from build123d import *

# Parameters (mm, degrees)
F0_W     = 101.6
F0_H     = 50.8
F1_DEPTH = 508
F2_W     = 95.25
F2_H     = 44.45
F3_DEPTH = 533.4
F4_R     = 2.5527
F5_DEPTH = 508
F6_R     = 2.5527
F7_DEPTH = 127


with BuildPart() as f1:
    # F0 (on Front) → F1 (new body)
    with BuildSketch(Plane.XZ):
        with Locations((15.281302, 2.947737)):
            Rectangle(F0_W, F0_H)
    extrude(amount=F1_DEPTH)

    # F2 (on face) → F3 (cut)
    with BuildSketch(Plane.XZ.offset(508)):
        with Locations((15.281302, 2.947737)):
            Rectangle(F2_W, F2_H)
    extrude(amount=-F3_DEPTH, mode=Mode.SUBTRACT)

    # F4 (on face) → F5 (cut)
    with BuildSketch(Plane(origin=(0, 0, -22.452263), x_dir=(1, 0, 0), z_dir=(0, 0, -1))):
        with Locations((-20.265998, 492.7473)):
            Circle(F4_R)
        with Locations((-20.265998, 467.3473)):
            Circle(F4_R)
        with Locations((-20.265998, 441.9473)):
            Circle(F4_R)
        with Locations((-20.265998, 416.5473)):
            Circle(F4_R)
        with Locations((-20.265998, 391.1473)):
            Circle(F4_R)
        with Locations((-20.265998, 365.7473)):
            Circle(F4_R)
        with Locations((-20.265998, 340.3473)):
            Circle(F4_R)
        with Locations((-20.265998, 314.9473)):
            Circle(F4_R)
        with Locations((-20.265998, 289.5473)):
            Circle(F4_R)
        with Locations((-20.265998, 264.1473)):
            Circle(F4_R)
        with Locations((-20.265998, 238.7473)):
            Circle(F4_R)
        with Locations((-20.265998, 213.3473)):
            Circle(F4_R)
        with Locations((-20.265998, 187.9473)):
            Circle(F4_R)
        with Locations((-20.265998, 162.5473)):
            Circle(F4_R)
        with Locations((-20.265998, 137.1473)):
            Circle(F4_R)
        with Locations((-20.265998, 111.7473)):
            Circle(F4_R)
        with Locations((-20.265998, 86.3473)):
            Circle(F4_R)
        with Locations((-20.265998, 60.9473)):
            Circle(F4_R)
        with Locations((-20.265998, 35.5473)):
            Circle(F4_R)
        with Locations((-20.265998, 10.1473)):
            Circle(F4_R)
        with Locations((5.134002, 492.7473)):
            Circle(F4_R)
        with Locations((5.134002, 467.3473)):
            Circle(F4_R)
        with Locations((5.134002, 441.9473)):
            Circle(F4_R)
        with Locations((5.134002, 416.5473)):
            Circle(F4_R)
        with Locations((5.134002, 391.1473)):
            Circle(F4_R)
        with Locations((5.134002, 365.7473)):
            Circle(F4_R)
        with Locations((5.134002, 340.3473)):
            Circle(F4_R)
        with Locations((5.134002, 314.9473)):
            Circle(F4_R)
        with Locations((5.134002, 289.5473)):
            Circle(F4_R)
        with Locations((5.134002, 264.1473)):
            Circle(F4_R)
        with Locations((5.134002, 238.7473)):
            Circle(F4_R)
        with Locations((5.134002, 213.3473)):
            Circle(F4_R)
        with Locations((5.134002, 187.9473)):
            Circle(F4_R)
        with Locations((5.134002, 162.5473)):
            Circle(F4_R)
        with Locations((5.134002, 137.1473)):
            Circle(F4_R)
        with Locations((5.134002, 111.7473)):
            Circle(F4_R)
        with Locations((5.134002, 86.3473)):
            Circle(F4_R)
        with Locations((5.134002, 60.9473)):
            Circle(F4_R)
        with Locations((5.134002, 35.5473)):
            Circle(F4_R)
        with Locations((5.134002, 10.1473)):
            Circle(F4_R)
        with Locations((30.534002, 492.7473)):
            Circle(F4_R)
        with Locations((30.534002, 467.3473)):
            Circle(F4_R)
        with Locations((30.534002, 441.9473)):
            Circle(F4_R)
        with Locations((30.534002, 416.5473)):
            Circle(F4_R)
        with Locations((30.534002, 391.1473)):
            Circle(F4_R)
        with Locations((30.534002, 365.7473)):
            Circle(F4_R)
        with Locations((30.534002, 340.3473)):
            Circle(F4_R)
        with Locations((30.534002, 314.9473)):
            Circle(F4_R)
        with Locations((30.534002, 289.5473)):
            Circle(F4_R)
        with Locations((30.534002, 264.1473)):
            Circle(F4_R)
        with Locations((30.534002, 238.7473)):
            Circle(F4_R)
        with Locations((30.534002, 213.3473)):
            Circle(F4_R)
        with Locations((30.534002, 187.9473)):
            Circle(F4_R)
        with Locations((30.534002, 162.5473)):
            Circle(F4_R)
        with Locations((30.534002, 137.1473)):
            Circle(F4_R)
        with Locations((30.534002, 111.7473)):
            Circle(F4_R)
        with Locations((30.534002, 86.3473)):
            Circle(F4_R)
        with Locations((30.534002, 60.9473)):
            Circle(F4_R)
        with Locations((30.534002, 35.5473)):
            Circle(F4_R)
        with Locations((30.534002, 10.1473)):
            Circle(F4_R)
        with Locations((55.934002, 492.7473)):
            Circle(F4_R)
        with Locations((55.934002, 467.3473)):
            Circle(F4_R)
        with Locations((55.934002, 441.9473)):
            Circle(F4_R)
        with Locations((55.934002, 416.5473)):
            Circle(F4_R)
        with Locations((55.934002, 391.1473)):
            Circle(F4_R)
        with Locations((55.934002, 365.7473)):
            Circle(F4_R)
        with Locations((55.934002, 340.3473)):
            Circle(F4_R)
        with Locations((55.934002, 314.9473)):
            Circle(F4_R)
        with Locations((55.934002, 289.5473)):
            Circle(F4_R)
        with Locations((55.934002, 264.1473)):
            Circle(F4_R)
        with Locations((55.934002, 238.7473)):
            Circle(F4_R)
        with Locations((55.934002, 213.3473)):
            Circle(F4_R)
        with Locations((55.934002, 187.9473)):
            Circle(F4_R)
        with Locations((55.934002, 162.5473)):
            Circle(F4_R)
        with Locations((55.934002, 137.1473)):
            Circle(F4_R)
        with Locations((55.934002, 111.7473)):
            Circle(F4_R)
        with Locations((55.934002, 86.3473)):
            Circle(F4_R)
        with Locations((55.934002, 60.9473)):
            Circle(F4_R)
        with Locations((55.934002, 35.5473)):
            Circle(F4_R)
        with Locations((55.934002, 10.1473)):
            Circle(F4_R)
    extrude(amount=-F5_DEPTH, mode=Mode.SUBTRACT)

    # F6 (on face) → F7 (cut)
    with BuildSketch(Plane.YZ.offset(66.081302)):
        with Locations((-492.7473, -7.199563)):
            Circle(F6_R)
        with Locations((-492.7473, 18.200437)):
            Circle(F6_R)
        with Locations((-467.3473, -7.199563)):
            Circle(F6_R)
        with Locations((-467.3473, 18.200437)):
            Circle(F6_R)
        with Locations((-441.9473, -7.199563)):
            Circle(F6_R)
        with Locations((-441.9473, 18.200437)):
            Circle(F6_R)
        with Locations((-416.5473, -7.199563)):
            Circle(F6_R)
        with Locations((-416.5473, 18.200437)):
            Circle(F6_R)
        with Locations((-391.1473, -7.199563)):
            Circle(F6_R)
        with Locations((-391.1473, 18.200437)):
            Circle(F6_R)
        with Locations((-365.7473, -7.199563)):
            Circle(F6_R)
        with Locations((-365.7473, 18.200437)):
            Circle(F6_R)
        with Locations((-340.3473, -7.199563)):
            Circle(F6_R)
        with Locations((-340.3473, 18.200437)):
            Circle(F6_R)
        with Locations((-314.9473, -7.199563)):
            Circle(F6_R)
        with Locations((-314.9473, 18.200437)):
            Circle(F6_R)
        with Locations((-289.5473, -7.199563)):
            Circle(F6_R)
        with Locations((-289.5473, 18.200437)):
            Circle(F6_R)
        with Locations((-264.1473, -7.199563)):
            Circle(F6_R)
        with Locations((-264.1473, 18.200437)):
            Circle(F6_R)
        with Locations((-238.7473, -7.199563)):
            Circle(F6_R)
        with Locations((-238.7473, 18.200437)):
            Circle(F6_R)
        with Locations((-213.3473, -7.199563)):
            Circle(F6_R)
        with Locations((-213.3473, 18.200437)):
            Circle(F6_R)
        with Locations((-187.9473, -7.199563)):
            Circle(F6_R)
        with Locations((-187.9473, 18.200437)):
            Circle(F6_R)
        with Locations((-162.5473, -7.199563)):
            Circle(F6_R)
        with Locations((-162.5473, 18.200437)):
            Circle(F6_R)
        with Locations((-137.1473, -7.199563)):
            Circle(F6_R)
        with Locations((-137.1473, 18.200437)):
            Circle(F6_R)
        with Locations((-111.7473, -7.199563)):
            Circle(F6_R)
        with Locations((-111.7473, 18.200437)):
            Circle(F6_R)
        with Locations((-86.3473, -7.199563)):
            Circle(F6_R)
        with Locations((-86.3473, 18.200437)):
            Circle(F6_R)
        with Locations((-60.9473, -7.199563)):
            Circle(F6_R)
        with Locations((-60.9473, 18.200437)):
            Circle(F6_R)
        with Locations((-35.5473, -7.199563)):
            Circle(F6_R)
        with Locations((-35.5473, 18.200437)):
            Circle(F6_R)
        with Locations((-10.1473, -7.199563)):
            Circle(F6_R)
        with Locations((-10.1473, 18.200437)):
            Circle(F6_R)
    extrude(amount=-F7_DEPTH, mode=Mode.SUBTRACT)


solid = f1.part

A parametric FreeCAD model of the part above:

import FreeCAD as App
import Part
import Sketcher

V = App.Vector
Q = App.Units.Quantity

doc = App.newDocument("Part")
body = doc.addObject("PartDesign::Body", "Body")

sketch1 = body.newObject("Sketcher::SketchObject", "Sketch")
sketch1.AttachmentSupport = (doc.getObject("XZ_Plane"), [""])
sketch1.MapMode = "FlatFace"
sketch1.addGeometry(Part.LineSegment(V(-35.518698, 28.347737, 0), V(-35.518698, -22.452263, 0)), False)
sketch1.addGeometry(Part.LineSegment(V(-35.518698, -22.452263, 0), V(66.081302, -22.452263, 0)), False)
sketch1.addGeometry(Part.LineSegment(V(66.081302, -22.452263, 0), V(66.081302, 28.347737, 0)), False)
sketch1.addGeometry(Part.LineSegment(V(66.081302, 28.347737, 0), V(-35.518698, 28.347737, 0)), False)
sketch1.addConstraint(Sketcher.Constraint("Coincident", 0, 2, 1, 1))
sketch1.addConstraint(Sketcher.Constraint("Coincident", 1, 2, 2, 1))
sketch1.addConstraint(Sketcher.Constraint("Coincident", 2, 2, 3, 1))
sketch1.addConstraint(Sketcher.Constraint("Coincident", 3, 2, 0, 1))
sketch1.addConstraint(Sketcher.Constraint("Vertical", 0))
sketch1.addConstraint(Sketcher.Constraint("Horizontal", 1))
sketch1.addConstraint(Sketcher.Constraint("Vertical", 2))
sketch1.addConstraint(Sketcher.Constraint("Horizontal", 3))
sketch1.addConstraint(Sketcher.Constraint("DistanceX", 1, 1, 1, 2, Q("4 in")))
sketch1.addConstraint(Sketcher.Constraint("DistanceY", 0, 2, 0, 1, Q("2 in")))
sketch1.addConstraint(Sketcher.Constraint("DistanceX", -1, 1, 1, 2, Q("66.081302 mm")))
sketch1.addConstraint(Sketcher.Constraint("DistanceY", 0, 2, -1, 1, Q("22.452263 mm")))
pad1 = body.newObject("PartDesign::Pad", "Pad")
pad1.Profile = sketch1
pad1.Length = Q("20 in")

sketch2 = body.newObject("Sketcher::SketchObject", "Sketch001")
sketch2.AttachmentSupport = (doc.getObject("XZ_Plane"), [""])
sketch2.MapMode = "FlatFace"
sketch2.AttachmentOffset = App.Placement(V(0, 0, 20 * 25.4), App.Rotation())
sketch2.addGeometry(Part.LineSegment(V(-32.343698, 25.172737, 0), V(-32.343698, -19.277263, 0)), False)
sketch2.addGeometry(Part.LineSegment(V(-32.343698, -19.277263, 0), V(62.906302, -19.277263, 0)), False)
sketch2.addGeometry(Part.LineSegment(V(62.906302, -19.277263, 0), V(62.906302, 25.172737, 0)), False)
sketch2.addGeometry(Part.LineSegment(V(62.906302, 25.172737, 0), V(-32.343698, 25.172737, 0)), False)
sketch2.addConstraint(Sketcher.Constraint("Coincident", 0, 2, 1, 1))
sketch2.addConstraint(Sketcher.Constraint("Coincident", 1, 2, 2, 1))
sketch2.addConstraint(Sketcher.Constraint("Coincident", 2, 2, 3, 1))
sketch2.addConstraint(Sketcher.Constraint("Coincident", 3, 2, 0, 1))
sketch2.addConstraint(Sketcher.Constraint("Vertical", 0))
sketch2.addConstraint(Sketcher.Constraint("Horizontal", 1))
sketch2.addConstraint(Sketcher.Constraint("Vertical", 2))
sketch2.addConstraint(Sketcher.Constraint("Horizontal", 3))
sketch2.addConstraint(Sketcher.Constraint("DistanceX", 1, 1, 1, 2, Q("3.75 in")))
sketch2.addConstraint(Sketcher.Constraint("DistanceY", 0, 2, 0, 1, Q("1.75 in")))
sketch2.addConstraint(Sketcher.Constraint("DistanceX", 0, 2, -1, 1, Q("32.343698 mm")))
sketch2.addConstraint(Sketcher.Constraint("DistanceY", 0, 2, -1, 1, Q("19.277263 mm")))
pocket1 = body.newObject("PartDesign::Pocket", "Pocket")
pocket1.Profile = sketch2
pocket1.Length = Q("21 in")

sketch3 = body.newObject("Sketcher::SketchObject", "Sketch002")
sketch3.AttachmentSupport = (doc.getObject("XY_Plane"), [""])
sketch3.MapMode = "FlatFace"
sketch3.AttachmentOffset = App.Placement(V(0, 0, -22.452263), App.Rotation())
sketch3.addGeometry(Part.Circle(V(-20.265998, -492.7473, 0), V(0, 0, 1), 2.5527), False)
sketch3.addGeometry(Part.Circle(V(-20.265998, -467.3473, 0), V(0, 0, 1), 2.5527), False)
sketch3.addGeometry(Part.Circle(V(-20.265998, -441.9473, 0), V(0, 0, 1), 2.5527), False)
sketch3.addGeometry(Part.Circle(V(-20.265998, -416.5473, 0), V(0, 0, 1), 2.5527), False)
sketch3.addGeometry(Part.Circle(V(-20.265998, -391.1473, 0), V(0, 0, 1), 2.5527), False)
sketch3.addGeometry(Part.Circle(V(-20.265998, -365.7473, 0), V(0, 0, 1), 2.5527), False)
sketch3.addGeometry(Part.Circle(V(-20.265998, -340.3473, 0), V(0, 0, 1), 2.5527), False)
sketch3.addGeometry(Part.Circle(V(-20.265998, -314.9473, 0), V(0, 0, 1), 2.5527), False)
sketch3.addGeometry(Part.Circle(V(-20.265998, -289.5473, 0), V(0, 0, 1), 2.5527), False)
sketch3.addGeometry(Part.Circle(V(-20.265998, -264.1473, 0), V(0, 0, 1), 2.5527), False)
sketch3.addGeometry(Part.Circle(V(-20.265998, -238.7473, 0), V(0, 0, 1), 2.5527), False)
sketch3.addGeometry(Part.Circle(V(-20.265998, -213.3473, 0), V(0, 0, 1), 2.5527), False)
sketch3.addGeometry(Part.Circle(V(-20.265998, -187.9473, 0), V(0, 0, 1), 2.5527), False)
sketch3.addGeometry(Part.Circle(V(-20.265998, -162.5473, 0), V(0, 0, 1), 2.5527), False)
sketch3.addGeometry(Part.Circle(V(-20.265998, -137.1473, 0), V(0, 0, 1), 2.5527), False)
sketch3.addGeometry(Part.Circle(V(-20.265998, -111.7473, 0), V(0, 0, 1), 2.5527), False)
sketch3.addGeometry(Part.Circle(V(-20.265998, -86.3473, 0), V(0, 0, 1), 2.5527), False)
sketch3.addGeometry(Part.Circle(V(-20.265998, -60.9473, 0), V(0, 0, 1), 2.5527), False)
sketch3.addGeometry(Part.Circle(V(-20.265998, -35.5473, 0), V(0, 0, 1), 2.5527), False)
sketch3.addGeometry(Part.Circle(V(-20.265998, -10.1473, 0), V(0, 0, 1), 2.5527), False)
sketch3.addGeometry(Part.Circle(V(5.134002, -492.7473, 0), V(0, 0, 1), 2.5527), False)
sketch3.addGeometry(Part.Circle(V(5.134002, -467.3473, 0), V(0, 0, 1), 2.5527), False)
sketch3.addGeometry(Part.Circle(V(5.134002, -441.9473, 0), V(0, 0, 1), 2.5527), False)
sketch3.addGeometry(Part.Circle(V(5.134002, -416.5473, 0), V(0, 0, 1), 2.5527), False)
sketch3.addGeometry(Part.Circle(V(5.134002, -391.1473, 0), V(0, 0, 1), 2.5527), False)
sketch3.addGeometry(Part.Circle(V(5.134002, -365.7473, 0), V(0, 0, 1), 2.5527), False)
sketch3.addGeometry(Part.Circle(V(5.134002, -340.3473, 0), V(0, 0, 1), 2.5527), False)
sketch3.addGeometry(Part.Circle(V(5.134002, -314.9473, 0), V(0, 0, 1), 2.5527), False)
sketch3.addGeometry(Part.Circle(V(5.134002, -289.5473, 0), V(0, 0, 1), 2.5527), False)
sketch3.addGeometry(Part.Circle(V(5.134002, -264.1473, 0), V(0, 0, 1), 2.5527), False)
sketch3.addGeometry(Part.Circle(V(5.134002, -238.7473, 0), V(0, 0, 1), 2.5527), False)
sketch3.addGeometry(Part.Circle(V(5.134002, -213.3473, 0), V(0, 0, 1), 2.5527), False)
sketch3.addGeometry(Part.Circle(V(5.134002, -187.9473, 0), V(0, 0, 1), 2.5527), False)
sketch3.addGeometry(Part.Circle(V(5.134002, -162.5473, 0), V(0, 0, 1), 2.5527), False)
sketch3.addGeometry(Part.Circle(V(5.134002, -137.1473, 0), V(0, 0, 1), 2.5527), False)
sketch3.addGeometry(Part.Circle(V(5.134002, -111.7473, 0), V(0, 0, 1), 2.5527), False)
sketch3.addGeometry(Part.Circle(V(5.134002, -86.3473, 0), V(0, 0, 1), 2.5527), False)
sketch3.addGeometry(Part.Circle(V(5.134002, -60.9473, 0), V(0, 0, 1), 2.5527), False)
sketch3.addGeometry(Part.Circle(V(5.134002, -35.5473, 0), V(0, 0, 1), 2.5527), False)
sketch3.addGeometry(Part.Circle(V(5.134002, -10.1473, 0), V(0, 0, 1), 2.5527), False)
sketch3.addGeometry(Part.Circle(V(30.534002, -492.7473, 0), V(0, 0, 1), 2.5527), False)
sketch3.addGeometry(Part.Circle(V(30.534002, -467.3473, 0), V(0, 0, 1), 2.5527), False)
sketch3.addGeometry(Part.Circle(V(30.534002, -441.9473, 0), V(0, 0, 1), 2.5527), False)
sketch3.addGeometry(Part.Circle(V(30.534002, -416.5473, 0), V(0, 0, 1), 2.5527), False)
sketch3.addGeometry(Part.Circle(V(30.534002, -391.1473, 0), V(0, 0, 1), 2.5527), False)
sketch3.addGeometry(Part.Circle(V(30.534002, -365.7473, 0), V(0, 0, 1), 2.5527), False)
sketch3.addGeometry(Part.Circle(V(30.534002, -340.3473, 0), V(0, 0, 1), 2.5527), False)
sketch3.addGeometry(Part.Circle(V(30.534002, -314.9473, 0), V(0, 0, 1), 2.5527), False)
sketch3.addGeometry(Part.Circle(V(30.534002, -289.5473, 0), V(0, 0, 1), 2.5527), False)
sketch3.addGeometry(Part.Circle(V(30.534002, -264.1473, 0), V(0, 0, 1), 2.5527), False)
sketch3.addGeometry(Part.Circle(V(30.534002, -238.7473, 0), V(0, 0, 1), 2.5527), False)
sketch3.addGeometry(Part.Circle(V(30.534002, -213.3473, 0), V(0, 0, 1), 2.5527), False)
sketch3.addGeometry(Part.Circle(V(30.534002, -187.9473, 0), V(0, 0, 1), 2.5527), False)
sketch3.addGeometry(Part.Circle(V(30.534002, -162.5473, 0), V(0, 0, 1), 2.5527), False)
sketch3.addGeometry(Part.Circle(V(30.534002, -137.1473, 0), V(0, 0, 1), 2.5527), False)
sketch3.addGeometry(Part.Circle(V(30.534002, -111.7473, 0), V(0, 0, 1), 2.5527), False)
sketch3.addGeometry(Part.Circle(V(30.534002, -86.3473, 0), V(0, 0, 1), 2.5527), False)
sketch3.addGeometry(Part.Circle(V(30.534002, -60.9473, 0), V(0, 0, 1), 2.5527), False)
sketch3.addGeometry(Part.Circle(V(30.534002, -35.5473, 0), V(0, 0, 1), 2.5527), False)
sketch3.addGeometry(Part.Circle(V(30.534002, -10.1473, 0), V(0, 0, 1), 2.5527), False)
sketch3.addGeometry(Part.Circle(V(55.934002, -492.7473, 0), V(0, 0, 1), 2.5527), False)
sketch3.addGeometry(Part.Circle(V(55.934002, -467.3473, 0), V(0, 0, 1), 2.5527), False)
sketch3.addGeometry(Part.Circle(V(55.934002, -441.9473, 0), V(0, 0, 1), 2.5527), False)
sketch3.addGeometry(Part.Circle(V(55.934002, -416.5473, 0), V(0, 0, 1), 2.5527), False)
sketch3.addGeometry(Part.Circle(V(55.934002, -391.1473, 0), V(0, 0, 1), 2.5527), False)
sketch3.addGeometry(Part.Circle(V(55.934002, -365.7473, 0), V(0, 0, 1), 2.5527), False)
sketch3.addGeometry(Part.Circle(V(55.934002, -340.3473, 0), V(0, 0, 1), 2.5527), False)
sketch3.addGeometry(Part.Circle(V(55.934002, -314.9473, 0), V(0, 0, 1), 2.5527), False)
sketch3.addGeometry(Part.Circle(V(55.934002, -289.5473, 0), V(0, 0, 1), 2.5527), False)
sketch3.addGeometry(Part.Circle(V(55.934002, -264.1473, 0), V(0, 0, 1), 2.5527), False)
sketch3.addGeometry(Part.Circle(V(55.934002, -238.7473, 0), V(0, 0, 1), 2.5527), False)
sketch3.addGeometry(Part.Circle(V(55.934002, -213.3473, 0), V(0, 0, 1), 2.5527), False)
sketch3.addGeometry(Part.Circle(V(55.934002, -187.9473, 0), V(0, 0, 1), 2.5527), False)
sketch3.addGeometry(Part.Circle(V(55.934002, -162.5473, 0), V(0, 0, 1), 2.5527), False)
sketch3.addGeometry(Part.Circle(V(55.934002, -137.1473, 0), V(0, 0, 1), 2.5527), False)
sketch3.addGeometry(Part.Circle(V(55.934002, -111.7473, 0), V(0, 0, 1), 2.5527), False)
sketch3.addGeometry(Part.Circle(V(55.934002, -86.3473, 0), V(0, 0, 1), 2.5527), False)
sketch3.addGeometry(Part.Circle(V(55.934002, -60.9473, 0), V(0, 0, 1), 2.5527), False)
sketch3.addGeometry(Part.Circle(V(55.934002, -35.5473, 0), V(0, 0, 1), 2.5527), False)
sketch3.addGeometry(Part.Circle(V(55.934002, -10.1473, 0), V(0, 0, 1), 2.5527), False)
sketch3.addConstraint(Sketcher.Constraint("Equal", 0, 1))
sketch3.addConstraint(Sketcher.Constraint("Equal", 1, 2))
sketch3.addConstraint(Sketcher.Constraint("Equal", 2, 3))
sketch3.addConstraint(Sketcher.Constraint("Equal", 3, 4))
sketch3.addConstraint(Sketcher.Constraint("Equal", 4, 5))
sketch3.addConstraint(Sketcher.Constraint("Equal", 5, 6))
sketch3.addConstraint(Sketcher.Constraint("Equal", 6, 7))
sketch3.addConstraint(Sketcher.Constraint("Equal", 7, 8))
sketch3.addConstraint(Sketcher.Constraint("Equal", 8, 9))
sketch3.addConstraint(Sketcher.Constraint("Equal", 9, 10))
sketch3.addConstraint(Sketcher.Constraint("Equal", 10, 11))
sketch3.addConstraint(Sketcher.Constraint("Equal", 11, 12))
sketch3.addConstraint(Sketcher.Constraint("Equal", 12, 13))
sketch3.addConstraint(Sketcher.Constraint("Equal", 13, 14))
sketch3.addConstraint(Sketcher.Constraint("Equal", 14, 15))
sketch3.addConstraint(Sketcher.Constraint("Equal", 15, 16))
sketch3.addConstraint(Sketcher.Constraint("Equal", 16, 17))
sketch3.addConstraint(Sketcher.Constraint("Equal", 17, 18))
sketch3.addConstraint(Sketcher.Constraint("Equal", 18, 19))
sketch3.addConstraint(Sketcher.Constraint("Equal", 19, 20))
sketch3.addConstraint(Sketcher.Constraint("Equal", 20, 21))
sketch3.addConstraint(Sketcher.Constraint("Equal", 21, 22))
sketch3.addConstraint(Sketcher.Constraint("Equal", 22, 23))
sketch3.addConstraint(Sketcher.Constraint("Equal", 23, 24))
sketch3.addConstraint(Sketcher.Constraint("Equal", 24, 25))
sketch3.addConstraint(Sketcher.Constraint("Equal", 25, 26))
sketch3.addConstraint(Sketcher.Constraint("Equal", 26, 27))
sketch3.addConstraint(Sketcher.Constraint("Equal", 27, 28))
sketch3.addConstraint(Sketcher.Constraint("Equal", 28, 29))
sketch3.addConstraint(Sketcher.Constraint("Equal", 29, 30))
sketch3.addConstraint(Sketcher.Constraint("Equal", 30, 31))
sketch3.addConstraint(Sketcher.Constraint("Equal", 31, 32))
sketch3.addConstraint(Sketcher.Constraint("Equal", 32, 33))
sketch3.addConstraint(Sketcher.Constraint("Equal", 33, 34))
sketch3.addConstraint(Sketcher.Constraint("Equal", 34, 35))
sketch3.addConstraint(Sketcher.Constraint("Equal", 35, 36))
sketch3.addConstraint(Sketcher.Constraint("Equal", 36, 37))
sketch3.addConstraint(Sketcher.Constraint("Equal", 37, 38))
sketch3.addConstraint(Sketcher.Constraint("Equal", 38, 39))
sketch3.addConstraint(Sketcher.Constraint("Equal", 39, 40))
sketch3.addConstraint(Sketcher.Constraint("Equal", 40, 41))
sketch3.addConstraint(Sketcher.Constraint("Equal", 41, 42))
sketch3.addConstraint(Sketcher.Constraint("Equal", 42, 43))
sketch3.addConstraint(Sketcher.Constraint("Equal", 43, 44))
sketch3.addConstraint(Sketcher.Constraint("Equal", 44, 45))
sketch3.addConstraint(Sketcher.Constraint("Equal", 45, 46))
sketch3.addConstraint(Sketcher.Constraint("Equal", 46, 47))
sketch3.addConstraint(Sketcher.Constraint("Equal", 47, 48))
sketch3.addConstraint(Sketcher.Constraint("Equal", 48, 49))
sketch3.addConstraint(Sketcher.Constraint("Equal", 49, 50))
sketch3.addConstraint(Sketcher.Constraint("Equal", 50, 51))
sketch3.addConstraint(Sketcher.Constraint("Equal", 51, 52))
sketch3.addConstraint(Sketcher.Constraint("Equal", 52, 53))
sketch3.addConstraint(Sketcher.Constraint("Equal", 53, 54))
sketch3.addConstraint(Sketcher.Constraint("Equal", 54, 55))
sketch3.addConstraint(Sketcher.Constraint("Equal", 55, 56))
sketch3.addConstraint(Sketcher.Constraint("Equal", 56, 57))
sketch3.addConstraint(Sketcher.Constraint("Equal", 57, 58))
sketch3.addConstraint(Sketcher.Constraint("Equal", 58, 59))
sketch3.addConstraint(Sketcher.Constraint("Equal", 59, 60))
sketch3.addConstraint(Sketcher.Constraint("Equal", 60, 61))
sketch3.addConstraint(Sketcher.Constraint("Equal", 61, 62))
sketch3.addConstraint(Sketcher.Constraint("Equal", 62, 63))
sketch3.addConstraint(Sketcher.Constraint("Equal", 63, 64))
sketch3.addConstraint(Sketcher.Constraint("Equal", 64, 65))
sketch3.addConstraint(Sketcher.Constraint("Equal", 65, 66))
sketch3.addConstraint(Sketcher.Constraint("Equal", 66, 67))
sketch3.addConstraint(Sketcher.Constraint("Equal", 67, 68))
sketch3.addConstraint(Sketcher.Constraint("Equal", 68, 69))
sketch3.addConstraint(Sketcher.Constraint("Equal", 69, 70))
sketch3.addConstraint(Sketcher.Constraint("Equal", 70, 71))
sketch3.addConstraint(Sketcher.Constraint("Equal", 71, 72))
sketch3.addConstraint(Sketcher.Constraint("Equal", 72, 73))
sketch3.addConstraint(Sketcher.Constraint("Equal", 73, 74))
sketch3.addConstraint(Sketcher.Constraint("Equal", 74, 75))
sketch3.addConstraint(Sketcher.Constraint("Equal", 75, 76))
sketch3.addConstraint(Sketcher.Constraint("Equal", 76, 77))
sketch3.addConstraint(Sketcher.Constraint("Equal", 77, 78))
sketch3.addConstraint(Sketcher.Constraint("Equal", 78, 79))
sketch3.addConstraint(Sketcher.Constraint("Horizontal", 0, 3, 20, 3))
sketch3.addConstraint(Sketcher.Constraint("Horizontal", 1, 3, 21, 3))
sketch3.addConstraint(Sketcher.Constraint("Horizontal", 2, 3, 22, 3))
sketch3.addConstraint(Sketcher.Constraint("Horizontal", 3, 3, 23, 3))
sketch3.addConstraint(Sketcher.Constraint("Horizontal", 4, 3, 24, 3))
sketch3.addConstraint(Sketcher.Constraint("Horizontal", 5, 3, 25, 3))
sketch3.addConstraint(Sketcher.Constraint("Horizontal", 6, 3, 26, 3))
sketch3.addConstraint(Sketcher.Constraint("Horizontal", 7, 3, 27, 3))
sketch3.addConstraint(Sketcher.Constraint("Horizontal", 8, 3, 28, 3))
sketch3.addConstraint(Sketcher.Constraint("Horizontal", 9, 3, 29, 3))
sketch3.addConstraint(Sketcher.Constraint("Horizontal", 10, 3, 30, 3))
sketch3.addConstraint(Sketcher.Constraint("Horizontal", 11, 3, 31, 3))
sketch3.addConstraint(Sketcher.Constraint("Horizontal", 12, 3, 32, 3))
sketch3.addConstraint(Sketcher.Constraint("Horizontal", 13, 3, 33, 3))
sketch3.addConstraint(Sketcher.Constraint("Horizontal", 14, 3, 34, 3))
sketch3.addConstraint(Sketcher.Constraint("Horizontal", 15, 3, 35, 3))
sketch3.addConstraint(Sketcher.Constraint("Horizontal", 16, 3, 36, 3))
sketch3.addConstraint(Sketcher.Constraint("Horizontal", 17, 3, 37, 3))
sketch3.addConstraint(Sketcher.Constraint("Horizontal", 18, 3, 38, 3))
sketch3.addConstraint(Sketcher.Constraint("Horizontal", 19, 3, 39, 3))
sketch3.addConstraint(Sketcher.Constraint("Horizontal", 20, 3, 40, 3))
sketch3.addConstraint(Sketcher.Constraint("Horizontal", 21, 3, 41, 3))
sketch3.addConstraint(Sketcher.Constraint("Horizontal", 22, 3, 42, 3))
sketch3.addConstraint(Sketcher.Constraint("Horizontal", 23, 3, 43, 3))
sketch3.addConstraint(Sketcher.Constraint("Horizontal", 24, 3, 44, 3))
sketch3.addConstraint(Sketcher.Constraint("Horizontal", 25, 3, 45, 3))
sketch3.addConstraint(Sketcher.Constraint("Horizontal", 26, 3, 46, 3))
sketch3.addConstraint(Sketcher.Constraint("Horizontal", 27, 3, 47, 3))
sketch3.addConstraint(Sketcher.Constraint("Horizontal", 28, 3, 48, 3))
sketch3.addConstraint(Sketcher.Constraint("Horizontal", 29, 3, 49, 3))
sketch3.addConstraint(Sketcher.Constraint("Horizontal", 30, 3, 50, 3))
sketch3.addConstraint(Sketcher.Constraint("Horizontal", 31, 3, 51, 3))
sketch3.addConstraint(Sketcher.Constraint("Horizontal", 32, 3, 52, 3))
sketch3.addConstraint(Sketcher.Constraint("Horizontal", 33, 3, 53, 3))
sketch3.addConstraint(Sketcher.Constraint("Horizontal", 34, 3, 54, 3))
sketch3.addConstraint(Sketcher.Constraint("Horizontal", 35, 3, 55, 3))
sketch3.addConstraint(Sketcher.Constraint("Horizontal", 36, 3, 56, 3))
sketch3.addConstraint(Sketcher.Constraint("Horizontal", 37, 3, 57, 3))
sketch3.addConstraint(Sketcher.Constraint("Horizontal", 38, 3, 58, 3))
sketch3.addConstraint(Sketcher.Constraint("Horizontal", 39, 3, 59, 3))
sketch3.addConstraint(Sketcher.Constraint("Horizontal", 40, 3, 60, 3))
sketch3.addConstraint(Sketcher.Constraint("Horizontal", 41, 3, 61, 3))
sketch3.addConstraint(Sketcher.Constraint("Horizontal", 42, 3, 62, 3))
sketch3.addConstraint(Sketcher.Constraint("Horizontal", 43, 3, 63, 3))
sketch3.addConstraint(Sketcher.Constraint("Horizontal", 44, 3, 64, 3))
sketch3.addConstraint(Sketcher.Constraint("Horizontal", 45, 3, 65, 3))
sketch3.addConstraint(Sketcher.Constraint("Horizontal", 46, 3, 66, 3))
sketch3.addConstraint(Sketcher.Constraint("Horizontal", 47, 3, 67, 3))
sketch3.addConstraint(Sketcher.Constraint("Horizontal", 48, 3, 68, 3))
sketch3.addConstraint(Sketcher.Constraint("Horizontal", 49, 3, 69, 3))
sketch3.addConstraint(Sketcher.Constraint("Horizontal", 50, 3, 70, 3))
sketch3.addConstraint(Sketcher.Constraint("Horizontal", 51, 3, 71, 3))
sketch3.addConstraint(Sketcher.Constraint("Horizontal", 52, 3, 72, 3))
sketch3.addConstraint(Sketcher.Constraint("Horizontal", 53, 3, 73, 3))
sketch3.addConstraint(Sketcher.Constraint("Horizontal", 54, 3, 74, 3))
sketch3.addConstraint(Sketcher.Constraint("Horizontal", 55, 3, 75, 3))
sketch3.addConstraint(Sketcher.Constraint("Horizontal", 56, 3, 76, 3))
sketch3.addConstraint(Sketcher.Constraint("Horizontal", 57, 3, 77, 3))
sketch3.addConstraint(Sketcher.Constraint("Horizontal", 58, 3, 78, 3))
sketch3.addConstraint(Sketcher.Constraint("Horizontal", 59, 3, 79, 3))
sketch3.addConstraint(Sketcher.Constraint("Vertical", 0, 3, 1, 3))
sketch3.addConstraint(Sketcher.Constraint("Vertical", 1, 3, 2, 3))
sketch3.addConstraint(Sketcher.Constraint("Vertical", 2, 3, 3, 3))
sketch3.addConstraint(Sketcher.Constraint("Vertical", 3, 3, 4, 3))
sketch3.addConstraint(Sketcher.Constraint("Vertical", 4, 3, 5, 3))
sketch3.addConstraint(Sketcher.Constraint("Vertical", 5, 3, 6, 3))
sketch3.addConstraint(Sketcher.Constraint("Vertical", 6, 3, 7, 3))
sketch3.addConstraint(Sketcher.Constraint("Vertical", 7, 3, 8, 3))
sketch3.addConstraint(Sketcher.Constraint("Vertical", 8, 3, 9, 3))
sketch3.addConstraint(Sketcher.Constraint("Vertical", 9, 3, 10, 3))
sketch3.addConstraint(Sketcher.Constraint("Vertical", 10, 3, 11, 3))
sketch3.addConstraint(Sketcher.Constraint("Vertical", 11, 3, 12, 3))
sketch3.addConstraint(Sketcher.Constraint("Vertical", 12, 3, 13, 3))
sketch3.addConstraint(Sketcher.Constraint("Vertical", 13, 3, 14, 3))
sketch3.addConstraint(Sketcher.Constraint("Vertical", 14, 3, 15, 3))
sketch3.addConstraint(Sketcher.Constraint("Vertical", 15, 3, 16, 3))
sketch3.addConstraint(Sketcher.Constraint("Vertical", 16, 3, 17, 3))
sketch3.addConstraint(Sketcher.Constraint("Vertical", 17, 3, 18, 3))
sketch3.addConstraint(Sketcher.Constraint("Vertical", 18, 3, 19, 3))
sketch3.addConstraint(Sketcher.Constraint("Vertical", 20, 3, 21, 3))
sketch3.addConstraint(Sketcher.Constraint("Vertical", 21, 3, 22, 3))
sketch3.addConstraint(Sketcher.Constraint("Vertical", 22, 3, 23, 3))
sketch3.addConstraint(Sketcher.Constraint("Vertical", 23, 3, 24, 3))
sketch3.addConstraint(Sketcher.Constraint("Vertical", 24, 3, 25, 3))
sketch3.addConstraint(Sketcher.Constraint("Vertical", 25, 3, 26, 3))
sketch3.addConstraint(Sketcher.Constraint("Vertical", 26, 3, 27, 3))
sketch3.addConstraint(Sketcher.Constraint("Vertical", 27, 3, 28, 3))
sketch3.addConstraint(Sketcher.Constraint("Vertical", 28, 3, 29, 3))
sketch3.addConstraint(Sketcher.Constraint("Vertical", 29, 3, 30, 3))
sketch3.addConstraint(Sketcher.Constraint("Vertical", 30, 3, 31, 3))
sketch3.addConstraint(Sketcher.Constraint("Vertical", 31, 3, 32, 3))
sketch3.addConstraint(Sketcher.Constraint("Vertical", 32, 3, 33, 3))
sketch3.addConstraint(Sketcher.Constraint("Vertical", 33, 3, 34, 3))
sketch3.addConstraint(Sketcher.Constraint("Vertical", 34, 3, 35, 3))
sketch3.addConstraint(Sketcher.Constraint("Vertical", 35, 3, 36, 3))
sketch3.addConstraint(Sketcher.Constraint("Vertical", 36, 3, 37, 3))
sketch3.addConstraint(Sketcher.Constraint("Vertical", 37, 3, 38, 3))
sketch3.addConstraint(Sketcher.Constraint("Vertical", 38, 3, 39, 3))
sketch3.addConstraint(Sketcher.Constraint("Vertical", 40, 3, 41, 3))
sketch3.addConstraint(Sketcher.Constraint("Vertical", 41, 3, 42, 3))
sketch3.addConstraint(Sketcher.Constraint("Vertical", 42, 3, 43, 3))
sketch3.addConstraint(Sketcher.Constraint("Vertical", 43, 3, 44, 3))
sketch3.addConstraint(Sketcher.Constraint("Vertical", 44, 3, 45, 3))
sketch3.addConstraint(Sketcher.Constraint("Vertical", 45, 3, 46, 3))
sketch3.addConstraint(Sketcher.Constraint("Vertical", 46, 3, 47, 3))
sketch3.addConstraint(Sketcher.Constraint("Vertical", 47, 3, 48, 3))
sketch3.addConstraint(Sketcher.Constraint("Vertical", 48, 3, 49, 3))
sketch3.addConstraint(Sketcher.Constraint("Vertical", 49, 3, 50, 3))
sketch3.addConstraint(Sketcher.Constraint("Vertical", 50, 3, 51, 3))
sketch3.addConstraint(Sketcher.Constraint("Vertical", 51, 3, 52, 3))
sketch3.addConstraint(Sketcher.Constraint("Vertical", 52, 3, 53, 3))
sketch3.addConstraint(Sketcher.Constraint("Vertical", 53, 3, 54, 3))
sketch3.addConstraint(Sketcher.Constraint("Vertical", 54, 3, 55, 3))
sketch3.addConstraint(Sketcher.Constraint("Vertical", 55, 3, 56, 3))
sketch3.addConstraint(Sketcher.Constraint("Vertical", 56, 3, 57, 3))
sketch3.addConstraint(Sketcher.Constraint("Vertical", 57, 3, 58, 3))
sketch3.addConstraint(Sketcher.Constraint("Vertical", 58, 3, 59, 3))
sketch3.addConstraint(Sketcher.Constraint("Vertical", 60, 3, 61, 3))
sketch3.addConstraint(Sketcher.Constraint("Vertical", 61, 3, 62, 3))
sketch3.addConstraint(Sketcher.Constraint("Vertical", 62, 3, 63, 3))
sketch3.addConstraint(Sketcher.Constraint("Vertical", 63, 3, 64, 3))
sketch3.addConstraint(Sketcher.Constraint("Vertical", 64, 3, 65, 3))
sketch3.addConstraint(Sketcher.Constraint("Vertical", 65, 3, 66, 3))
sketch3.addConstraint(Sketcher.Constraint("Vertical", 66, 3, 67, 3))
sketch3.addConstraint(Sketcher.Constraint("Vertical", 67, 3, 68, 3))
sketch3.addConstraint(Sketcher.Constraint("Vertical", 68, 3, 69, 3))
sketch3.addConstraint(Sketcher.Constraint("Vertical", 69, 3, 70, 3))
sketch3.addConstraint(Sketcher.Constraint("Vertical", 70, 3, 71, 3))
sketch3.addConstraint(Sketcher.Constraint("Vertical", 71, 3, 72, 3))
sketch3.addConstraint(Sketcher.Constraint("Vertical", 72, 3, 73, 3))
sketch3.addConstraint(Sketcher.Constraint("Vertical", 73, 3, 74, 3))
sketch3.addConstraint(Sketcher.Constraint("Vertical", 74, 3, 75, 3))
sketch3.addConstraint(Sketcher.Constraint("Vertical", 75, 3, 76, 3))
sketch3.addConstraint(Sketcher.Constraint("Vertical", 76, 3, 77, 3))
sketch3.addConstraint(Sketcher.Constraint("Vertical", 77, 3, 78, 3))
sketch3.addConstraint(Sketcher.Constraint("Vertical", 78, 3, 79, 3))
sketch3.addConstraint(Sketcher.Constraint("Diameter", 0, Q("0.201 in")))
sketch3.addConstraint(Sketcher.Constraint("DistanceY", 0, 3, -1, 1, Q("19.3995 in")))
sketch3.addConstraint(Sketcher.Constraint("DistanceY", 1, 3, -1, 1, Q("18.3995 in")))
sketch3.addConstraint(Sketcher.Constraint("DistanceY", 2, 3, -1, 1, Q("17.3995 in")))
sketch3.addConstraint(Sketcher.Constraint("DistanceY", 3, 3, -1, 1, Q("16.3995 in")))
sketch3.addConstraint(Sketcher.Constraint("DistanceY", 4, 3, -1, 1, Q("15.3995 in")))
sketch3.addConstraint(Sketcher.Constraint("DistanceY", 5, 3, -1, 1, Q("14.3995 in")))
sketch3.addConstraint(Sketcher.Constraint("DistanceY", 6, 3, -1, 1, Q("13.3995 in")))
sketch3.addConstraint(Sketcher.Constraint("DistanceY", 7, 3, -1, 1, Q("12.3995 in")))
sketch3.addConstraint(Sketcher.Constraint("DistanceY", 8, 3, -1, 1, Q("11.3995 in")))
sketch3.addConstraint(Sketcher.Constraint("DistanceY", 9, 3, -1, 1, Q("10.3995 in")))
sketch3.addConstraint(Sketcher.Constraint("DistanceY", 10, 3, -1, 1, Q("9.3995 in")))
sketch3.addConstraint(Sketcher.Constraint("DistanceY", 11, 3, -1, 1, Q("8.3995 in")))
sketch3.addConstraint(Sketcher.Constraint("DistanceY", 12, 3, -1, 1, Q("7.3995 in")))
sketch3.addConstraint(Sketcher.Constraint("DistanceY", 13, 3, -1, 1, Q("6.3995 in")))
sketch3.addConstraint(Sketcher.Constraint("DistanceY", 14, 3, -1, 1, Q("5.3995 in")))
sketch3.addConstraint(Sketcher.Constraint("DistanceY", 15, 3, -1, 1, Q("4.3995 in")))
sketch3.addConstraint(Sketcher.Constraint("DistanceY", 16, 3, -1, 1, Q("3.3995 in")))
sketch3.addConstraint(Sketcher.Constraint("DistanceY", 17, 3, -1, 1, Q("2.3995 in")))
sketch3.addConstraint(Sketcher.Constraint("DistanceY", 18, 3, -1, 1, Q("1.3995 in")))
sketch3.addConstraint(Sketcher.Constraint("DistanceY", 19, 3, -1, 1, Q("0.3995 in")))
sketch3.addConstraint(Sketcher.Constraint("DistanceX", 0, 3, -1, 1, Q("20.265998 mm")))
sketch3.addConstraint(Sketcher.Constraint("DistanceX", -1, 1, 20, 3, Q("5.134002 mm")))
sketch3.addConstraint(Sketcher.Constraint("DistanceX", -1, 1, 40, 3, Q("30.534002 mm")))
sketch3.addConstraint(Sketcher.Constraint("DistanceX", -1, 1, 60, 3, Q("55.934002 mm")))
pocket2 = body.newObject("PartDesign::Pocket", "Pocket001")
pocket2.Profile = sketch3
pocket2.Length = Q("20 in")
pocket2.Reversed = True

sketch4 = body.newObject("Sketcher::SketchObject", "Sketch003")
sketch4.AttachmentSupport = (doc.getObject("YZ_Plane"), [""])
sketch4.MapMode = "FlatFace"
sketch4.AttachmentOffset = App.Placement(V(0, 0, 66.081302), App.Rotation())
sketch4.addGeometry(Part.Circle(V(-492.7473, -7.199563, 0), V(0, 0, 1), 2.5527), False)
sketch4.addGeometry(Part.Circle(V(-492.7473, 18.200437, 0), V(0, 0, 1), 2.5527), False)
sketch4.addGeometry(Part.Circle(V(-467.3473, -7.199563, 0), V(0, 0, 1), 2.5527), False)
sketch4.addGeometry(Part.Circle(V(-467.3473, 18.200437, 0), V(0, 0, 1), 2.5527), False)
sketch4.addGeometry(Part.Circle(V(-441.9473, -7.199563, 0), V(0, 0, 1), 2.5527), False)
sketch4.addGeometry(Part.Circle(V(-441.9473, 18.200437, 0), V(0, 0, 1), 2.5527), False)
sketch4.addGeometry(Part.Circle(V(-416.5473, -7.199563, 0), V(0, 0, 1), 2.5527), False)
sketch4.addGeometry(Part.Circle(V(-416.5473, 18.200437, 0), V(0, 0, 1), 2.5527), False)
sketch4.addGeometry(Part.Circle(V(-391.1473, -7.199563, 0), V(0, 0, 1), 2.5527), False)
sketch4.addGeometry(Part.Circle(V(-391.1473, 18.200437, 0), V(0, 0, 1), 2.5527), False)
sketch4.addGeometry(Part.Circle(V(-365.7473, -7.199563, 0), V(0, 0, 1), 2.5527), False)
sketch4.addGeometry(Part.Circle(V(-365.7473, 18.200437, 0), V(0, 0, 1), 2.5527), False)
sketch4.addGeometry(Part.Circle(V(-340.3473, -7.199563, 0), V(0, 0, 1), 2.5527), False)
sketch4.addGeometry(Part.Circle(V(-340.3473, 18.200437, 0), V(0, 0, 1), 2.5527), False)
sketch4.addGeometry(Part.Circle(V(-314.9473, -7.199563, 0), V(0, 0, 1), 2.5527), False)
sketch4.addGeometry(Part.Circle(V(-314.9473, 18.200437, 0), V(0, 0, 1), 2.5527), False)
sketch4.addGeometry(Part.Circle(V(-289.5473, -7.199563, 0), V(0, 0, 1), 2.5527), False)
sketch4.addGeometry(Part.Circle(V(-289.5473, 18.200437, 0), V(0, 0, 1), 2.5527), False)
sketch4.addGeometry(Part.Circle(V(-264.1473, -7.199563, 0), V(0, 0, 1), 2.5527), False)
sketch4.addGeometry(Part.Circle(V(-264.1473, 18.200437, 0), V(0, 0, 1), 2.5527), False)
sketch4.addGeometry(Part.Circle(V(-238.7473, -7.199563, 0), V(0, 0, 1), 2.5527), False)
sketch4.addGeometry(Part.Circle(V(-238.7473, 18.200437, 0), V(0, 0, 1), 2.5527), False)
sketch4.addGeometry(Part.Circle(V(-213.3473, -7.199563, 0), V(0, 0, 1), 2.5527), False)
sketch4.addGeometry(Part.Circle(V(-213.3473, 18.200437, 0), V(0, 0, 1), 2.5527), False)
sketch4.addGeometry(Part.Circle(V(-187.9473, -7.199563, 0), V(0, 0, 1), 2.5527), False)
sketch4.addGeometry(Part.Circle(V(-187.9473, 18.200437, 0), V(0, 0, 1), 2.5527), False)
sketch4.addGeometry(Part.Circle(V(-162.5473, -7.199563, 0), V(0, 0, 1), 2.5527), False)
sketch4.addGeometry(Part.Circle(V(-162.5473, 18.200437, 0), V(0, 0, 1), 2.5527), False)
sketch4.addGeometry(Part.Circle(V(-137.1473, -7.199563, 0), V(0, 0, 1), 2.5527), False)
sketch4.addGeometry(Part.Circle(V(-137.1473, 18.200437, 0), V(0, 0, 1), 2.5527), False)
sketch4.addGeometry(Part.Circle(V(-111.7473, -7.199563, 0), V(0, 0, 1), 2.5527), False)
sketch4.addGeometry(Part.Circle(V(-111.7473, 18.200437, 0), V(0, 0, 1), 2.5527), False)
sketch4.addGeometry(Part.Circle(V(-86.3473, -7.199563, 0), V(0, 0, 1), 2.5527), False)
sketch4.addGeometry(Part.Circle(V(-86.3473, 18.200437, 0), V(0, 0, 1), 2.5527), False)
sketch4.addGeometry(Part.Circle(V(-60.9473, -7.199563, 0), V(0, 0, 1), 2.5527), False)
sketch4.addGeometry(Part.Circle(V(-60.9473, 18.200437, 0), V(0, 0, 1), 2.5527), False)
sketch4.addGeometry(Part.Circle(V(-35.5473, -7.199563, 0), V(0, 0, 1), 2.5527), False)
sketch4.addGeometry(Part.Circle(V(-35.5473, 18.200437, 0), V(0, 0, 1), 2.5527), False)
sketch4.addGeometry(Part.Circle(V(-10.1473, -7.199563, 0), V(0, 0, 1), 2.5527), False)
sketch4.addGeometry(Part.Circle(V(-10.1473, 18.200437, 0), V(0, 0, 1), 2.5527), False)
sketch4.addConstraint(Sketcher.Constraint("Equal", 0, 1))
sketch4.addConstraint(Sketcher.Constraint("Equal", 1, 2))
sketch4.addConstraint(Sketcher.Constraint("Equal", 2, 3))
sketch4.addConstraint(Sketcher.Constraint("Equal", 3, 4))
sketch4.addConstraint(Sketcher.Constraint("Equal", 4, 5))
sketch4.addConstraint(Sketcher.Constraint("Equal", 5, 6))
sketch4.addConstraint(Sketcher.Constraint("Equal", 6, 7))
sketch4.addConstraint(Sketcher.Constraint("Equal", 7, 8))
sketch4.addConstraint(Sketcher.Constraint("Equal", 8, 9))
sketch4.addConstraint(Sketcher.Constraint("Equal", 9, 10))
sketch4.addConstraint(Sketcher.Constraint("Equal", 10, 11))
sketch4.addConstraint(Sketcher.Constraint("Equal", 11, 12))
sketch4.addConstraint(Sketcher.Constraint("Equal", 12, 13))
sketch4.addConstraint(Sketcher.Constraint("Equal", 13, 14))
sketch4.addConstraint(Sketcher.Constraint("Equal", 14, 15))
sketch4.addConstraint(Sketcher.Constraint("Equal", 15, 16))
sketch4.addConstraint(Sketcher.Constraint("Equal", 16, 17))
sketch4.addConstraint(Sketcher.Constraint("Equal", 17, 18))
sketch4.addConstraint(Sketcher.Constraint("Equal", 18, 19))
sketch4.addConstraint(Sketcher.Constraint("Equal", 19, 20))
sketch4.addConstraint(Sketcher.Constraint("Equal", 20, 21))
sketch4.addConstraint(Sketcher.Constraint("Equal", 21, 22))
sketch4.addConstraint(Sketcher.Constraint("Equal", 22, 23))
sketch4.addConstraint(Sketcher.Constraint("Equal", 23, 24))
sketch4.addConstraint(Sketcher.Constraint("Equal", 24, 25))
sketch4.addConstraint(Sketcher.Constraint("Equal", 25, 26))
sketch4.addConstraint(Sketcher.Constraint("Equal", 26, 27))
sketch4.addConstraint(Sketcher.Constraint("Equal", 27, 28))
sketch4.addConstraint(Sketcher.Constraint("Equal", 28, 29))
sketch4.addConstraint(Sketcher.Constraint("Equal", 29, 30))
sketch4.addConstraint(Sketcher.Constraint("Equal", 30, 31))
sketch4.addConstraint(Sketcher.Constraint("Equal", 31, 32))
sketch4.addConstraint(Sketcher.Constraint("Equal", 32, 33))
sketch4.addConstraint(Sketcher.Constraint("Equal", 33, 34))
sketch4.addConstraint(Sketcher.Constraint("Equal", 34, 35))
sketch4.addConstraint(Sketcher.Constraint("Equal", 35, 36))
sketch4.addConstraint(Sketcher.Constraint("Equal", 36, 37))
sketch4.addConstraint(Sketcher.Constraint("Equal", 37, 38))
sketch4.addConstraint(Sketcher.Constraint("Equal", 38, 39))
sketch4.addConstraint(Sketcher.Constraint("Horizontal", 0, 3, 2, 3))
sketch4.addConstraint(Sketcher.Constraint("Horizontal", 1, 3, 3, 3))
sketch4.addConstraint(Sketcher.Constraint("Horizontal", 2, 3, 4, 3))
sketch4.addConstraint(Sketcher.Constraint("Horizontal", 3, 3, 5, 3))
sketch4.addConstraint(Sketcher.Constraint("Horizontal", 4, 3, 6, 3))
sketch4.addConstraint(Sketcher.Constraint("Horizontal", 5, 3, 7, 3))
sketch4.addConstraint(Sketcher.Constraint("Horizontal", 6, 3, 8, 3))
sketch4.addConstraint(Sketcher.Constraint("Horizontal", 7, 3, 9, 3))
sketch4.addConstraint(Sketcher.Constraint("Horizontal", 8, 3, 10, 3))
sketch4.addConstraint(Sketcher.Constraint("Horizontal", 9, 3, 11, 3))
sketch4.addConstraint(Sketcher.Constraint("Horizontal", 10, 3, 12, 3))
sketch4.addConstraint(Sketcher.Constraint("Horizontal", 11, 3, 13, 3))
sketch4.addConstraint(Sketcher.Constraint("Horizontal", 12, 3, 14, 3))
sketch4.addConstraint(Sketcher.Constraint("Horizontal", 13, 3, 15, 3))
sketch4.addConstraint(Sketcher.Constraint("Horizontal", 14, 3, 16, 3))
sketch4.addConstraint(Sketcher.Constraint("Horizontal", 15, 3, 17, 3))
sketch4.addConstraint(Sketcher.Constraint("Horizontal", 16, 3, 18, 3))
sketch4.addConstraint(Sketcher.Constraint("Horizontal", 17, 3, 19, 3))
sketch4.addConstraint(Sketcher.Constraint("Horizontal", 18, 3, 20, 3))
sketch4.addConstraint(Sketcher.Constraint("Horizontal", 19, 3, 21, 3))
sketch4.addConstraint(Sketcher.Constraint("Horizontal", 20, 3, 22, 3))
sketch4.addConstraint(Sketcher.Constraint("Horizontal", 21, 3, 23, 3))
sketch4.addConstraint(Sketcher.Constraint("Horizontal", 22, 3, 24, 3))
sketch4.addConstraint(Sketcher.Constraint("Horizontal", 23, 3, 25, 3))
sketch4.addConstraint(Sketcher.Constraint("Horizontal", 24, 3, 26, 3))
sketch4.addConstraint(Sketcher.Constraint("Horizontal", 25, 3, 27, 3))
sketch4.addConstraint(Sketcher.Constraint("Horizontal", 26, 3, 28, 3))
sketch4.addConstraint(Sketcher.Constraint("Horizontal", 27, 3, 29, 3))
sketch4.addConstraint(Sketcher.Constraint("Horizontal", 28, 3, 30, 3))
sketch4.addConstraint(Sketcher.Constraint("Horizontal", 29, 3, 31, 3))
sketch4.addConstraint(Sketcher.Constraint("Horizontal", 30, 3, 32, 3))
sketch4.addConstraint(Sketcher.Constraint("Horizontal", 31, 3, 33, 3))
sketch4.addConstraint(Sketcher.Constraint("Horizontal", 32, 3, 34, 3))
sketch4.addConstraint(Sketcher.Constraint("Horizontal", 33, 3, 35, 3))
sketch4.addConstraint(Sketcher.Constraint("Horizontal", 34, 3, 36, 3))
sketch4.addConstraint(Sketcher.Constraint("Horizontal", 35, 3, 37, 3))
sketch4.addConstraint(Sketcher.Constraint("Horizontal", 36, 3, 38, 3))
sketch4.addConstraint(Sketcher.Constraint("Horizontal", 37, 3, 39, 3))
sketch4.addConstraint(Sketcher.Constraint("Vertical", 0, 3, 1, 3))
sketch4.addConstraint(Sketcher.Constraint("Vertical", 2, 3, 3, 3))
sketch4.addConstraint(Sketcher.Constraint("Vertical", 4, 3, 5, 3))
sketch4.addConstraint(Sketcher.Constraint("Vertical", 6, 3, 7, 3))
sketch4.addConstraint(Sketcher.Constraint("Vertical", 8, 3, 9, 3))
sketch4.addConstraint(Sketcher.Constraint("Vertical", 10, 3, 11, 3))
sketch4.addConstraint(Sketcher.Constraint("Vertical", 12, 3, 13, 3))
sketch4.addConstraint(Sketcher.Constraint("Vertical", 14, 3, 15, 3))
sketch4.addConstraint(Sketcher.Constraint("Vertical", 16, 3, 17, 3))
sketch4.addConstraint(Sketcher.Constraint("Vertical", 18, 3, 19, 3))
sketch4.addConstraint(Sketcher.Constraint("Vertical", 20, 3, 21, 3))
sketch4.addConstraint(Sketcher.Constraint("Vertical", 22, 3, 23, 3))
sketch4.addConstraint(Sketcher.Constraint("Vertical", 24, 3, 25, 3))
sketch4.addConstraint(Sketcher.Constraint("Vertical", 26, 3, 27, 3))
sketch4.addConstraint(Sketcher.Constraint("Vertical", 28, 3, 29, 3))
sketch4.addConstraint(Sketcher.Constraint("Vertical", 30, 3, 31, 3))
sketch4.addConstraint(Sketcher.Constraint("Vertical", 32, 3, 33, 3))
sketch4.addConstraint(Sketcher.Constraint("Vertical", 34, 3, 35, 3))
sketch4.addConstraint(Sketcher.Constraint("Vertical", 36, 3, 37, 3))
sketch4.addConstraint(Sketcher.Constraint("Vertical", 38, 3, 39, 3))
sketch4.addConstraint(Sketcher.Constraint("Diameter", 0, Q("0.201 in")))
sketch4.addConstraint(Sketcher.Constraint("DistanceY", 0, 3, 1, 3, Q("1 in")))
sketch4.addConstraint(Sketcher.Constraint("DistanceX", 0, 3, 2, 3, Q("1 in")))
sketch4.addConstraint(Sketcher.Constraint("DistanceX", 2, 3, 4, 3, Q("1 in")))
sketch4.addConstraint(Sketcher.Constraint("DistanceX", 4, 3, 6, 3, Q("1 in")))
sketch4.addConstraint(Sketcher.Constraint("DistanceX", 6, 3, 8, 3, Q("1 in")))
sketch4.addConstraint(Sketcher.Constraint("DistanceX", 8, 3, 10, 3, Q("1 in")))
sketch4.addConstraint(Sketcher.Constraint("DistanceX", 10, 3, 12, 3, Q("1 in")))
sketch4.addConstraint(Sketcher.Constraint("DistanceX", 12, 3, 14, 3, Q("1 in")))
sketch4.addConstraint(Sketcher.Constraint("DistanceX", 14, 3, 16, 3, Q("1 in")))
sketch4.addConstraint(Sketcher.Constraint("DistanceX", 16, 3, 18, 3, Q("1 in")))
sketch4.addConstraint(Sketcher.Constraint("DistanceX", 18, 3, 20, 3, Q("1 in")))
sketch4.addConstraint(Sketcher.Constraint("DistanceX", 20, 3, 22, 3, Q("1 in")))
sketch4.addConstraint(Sketcher.Constraint("DistanceX", 22, 3, 24, 3, Q("1 in")))
sketch4.addConstraint(Sketcher.Constraint("DistanceX", 24, 3, 26, 3, Q("1 in")))
sketch4.addConstraint(Sketcher.Constraint("DistanceX", 26, 3, 28, 3, Q("1 in")))
sketch4.addConstraint(Sketcher.Constraint("DistanceX", 28, 3, 30, 3, Q("1 in")))
sketch4.addConstraint(Sketcher.Constraint("DistanceX", 30, 3, 32, 3, Q("1 in")))
sketch4.addConstraint(Sketcher.Constraint("DistanceX", 32, 3, 34, 3, Q("1 in")))
sketch4.addConstraint(Sketcher.Constraint("DistanceX", 34, 3, 36, 3, Q("1 in")))
sketch4.addConstraint(Sketcher.Constraint("DistanceX", 36, 3, 38, 3, Q("1 in")))
sketch4.addConstraint(Sketcher.Constraint("DistanceX", 0, 3, -1, 1, Q("19.3995 in")))
sketch4.addConstraint(Sketcher.Constraint("DistanceY", 0, 3, -1, 1, Q("7.199563 mm")))
pocket3 = body.newObject("PartDesign::Pocket", "Pocket002")
pocket3.Profile = sketch4
pocket3.Length = Q("5 in")

doc.recompute()
